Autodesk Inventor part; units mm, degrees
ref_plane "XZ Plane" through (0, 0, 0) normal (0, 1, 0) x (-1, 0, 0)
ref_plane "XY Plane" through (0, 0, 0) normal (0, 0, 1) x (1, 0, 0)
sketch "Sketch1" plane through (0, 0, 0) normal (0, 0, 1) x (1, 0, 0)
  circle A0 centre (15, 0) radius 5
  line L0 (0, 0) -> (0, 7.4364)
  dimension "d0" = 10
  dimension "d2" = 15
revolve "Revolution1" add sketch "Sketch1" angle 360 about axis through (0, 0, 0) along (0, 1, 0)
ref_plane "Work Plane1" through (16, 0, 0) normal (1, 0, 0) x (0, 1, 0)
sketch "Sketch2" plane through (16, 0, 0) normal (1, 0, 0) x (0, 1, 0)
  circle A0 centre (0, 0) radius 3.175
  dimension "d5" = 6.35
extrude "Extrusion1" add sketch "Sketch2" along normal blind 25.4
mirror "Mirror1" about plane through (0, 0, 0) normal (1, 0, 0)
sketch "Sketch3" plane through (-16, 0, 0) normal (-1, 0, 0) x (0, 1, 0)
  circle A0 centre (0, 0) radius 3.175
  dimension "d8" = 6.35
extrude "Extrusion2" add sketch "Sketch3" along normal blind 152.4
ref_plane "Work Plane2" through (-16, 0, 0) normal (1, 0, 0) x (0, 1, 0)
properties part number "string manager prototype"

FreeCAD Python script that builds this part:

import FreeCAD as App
import Part
import Sketcher

V = App.Vector
Q = App.Units.Quantity

doc = App.newDocument("Part")
body = doc.addObject("PartDesign::Body", "Body")

sketch1 = body.newObject("Sketcher::SketchObject", "Sketch")
sketch1.AttachmentSupport = (doc.getObject("XY_Plane"), [""])
sketch1.MapMode = "FlatFace"
sketch1.addGeometry(Part.Circle(V(15, 0, 0), V(0, 0, 1), 5), False)
sketch1.addConstraint([
    Sketcher.Constraint("PointOnObject", 0, 3, -1),
    Sketcher.Constraint("Diameter", 0, Q("0.3937 in")),
    Sketcher.Constraint("DistanceX", -1, 1, 0, 3, Q("15 mm")),
])
revolution = body.newObject("PartDesign::Revolution", "Revolution")
revolution.Profile = sketch1
revolution.ReferenceAxis = (sketch1, ["V_Axis"])
revolution.Angle = 360

sketch2 = body.newObject("Sketcher::SketchObject", "Sketch001")
sketch2.AttachmentSupport = (doc.getObject("YZ_Plane"), [""])
sketch2.MapMode = "FlatFace"
sketch2.AttachmentOffset = App.Placement(V(0, 0, 16), App.Rotation())
sketch2.addGeometry(Part.Circle(V(0, 0, 0), V(0, 0, 1), 3.2), False)
sketch2.addConstraint([
    Sketcher.Constraint("Coincident", 0, 3, -1, 1),
    Sketcher.Constraint("Diameter", 0, Q("0.25 in")),
])
pad1 = body.newObject("PartDesign::Pad", "Pad")
pad1.Profile = sketch2
pad1.Length = Q("1 in")
doc.recompute()

mirrored = body.newObject("PartDesign::Mirrored", "Mirrored")
mirrored.TransformMode = "Transform body"
mirrored.MirrorPlane = (doc.getObject("YZ_Plane"), [""])
body.Tip = mirrored

sketch3 = body.newObject("Sketcher::SketchObject", "Sketch002")
sketch3.AttachmentSupport = (doc.getObject("YZ_Plane"), [""])
sketch3.MapMode = "FlatFace"
sketch3.AttachmentOffset = App.Placement(V(0, 0, -16), App.Rotation())
sketch3.addGeometry(Part.Circle(V(0, 0, 0), V(0, 0, 1), 3.2), False)
sketch3.addConstraint([
    Sketcher.Constraint("Coincident", 0, 3, -1, 1),
    Sketcher.Constraint("Diameter", 0, Q("0.25 in")),
])
pad2 = body.newObject("PartDesign::Pad", "Pad001")
pad2.Profile = sketch3
pad2.Length = Q("6 in")
pad2.Reversed = True

doc.recompute()
